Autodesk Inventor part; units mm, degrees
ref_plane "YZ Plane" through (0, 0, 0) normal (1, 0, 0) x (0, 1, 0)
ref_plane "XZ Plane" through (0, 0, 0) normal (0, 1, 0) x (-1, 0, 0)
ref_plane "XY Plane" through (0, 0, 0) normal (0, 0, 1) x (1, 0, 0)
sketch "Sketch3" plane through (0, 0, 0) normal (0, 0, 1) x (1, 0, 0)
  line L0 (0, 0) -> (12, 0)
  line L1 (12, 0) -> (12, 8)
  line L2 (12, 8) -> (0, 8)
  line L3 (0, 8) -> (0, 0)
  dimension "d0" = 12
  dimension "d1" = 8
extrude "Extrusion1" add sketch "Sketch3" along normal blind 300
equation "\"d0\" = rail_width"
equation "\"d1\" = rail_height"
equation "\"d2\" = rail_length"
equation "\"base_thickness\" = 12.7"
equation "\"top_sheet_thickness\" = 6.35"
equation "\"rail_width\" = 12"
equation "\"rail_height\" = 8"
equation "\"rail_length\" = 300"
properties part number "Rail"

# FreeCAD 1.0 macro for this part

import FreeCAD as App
import Part
import Sketcher
from FreeCAD import Vector


def add_polygon(sketch, points):
    """Adds a closed chain of lines whose ends are joined by coincident constraints."""
    first, n = sketch.GeometryCount, len(points)
    for a, b in zip(points, points[1:] + points[:1]):
        sketch.addGeometry(Part.LineSegment(App.Vector(*a, 0), App.Vector(*b, 0)), False)
    for i in range(n):
        sketch.addConstraint(Sketcher.Constraint("Coincident", first + i, 2, first + (i + 1) % n, 1))

doc = App.newDocument("Part")
params = doc.addObject("Spreadsheet::Sheet", "Params")
for row, (alias, value) in enumerate([
    ("sketch1_width", "12 mm"),
    ("sketch1_height", "8 mm"),
    ("pad1_length", "300 mm"),
], start=1):
    params.set(f"A{row}", alias)
    params.set(f"B{row}", "=" + value)
    params.setAlias(f"B{row}", alias)

body = doc.addObject("PartDesign::Body", "Body")

# Sketch on XY plane
sketch1 = doc.addObject("Sketcher::SketchObject", "Sketch")
body.addObject(sketch1)
sketch1.AttachmentSupport = (doc.XY_Plane, [""])
sketch1.MapMode = "FlatFace"
add_polygon(sketch1, [(0, 8), (0, 0), (12, 0), (12, 8)])  # lines 0-3
sketch1.addConstraint(Sketcher.Constraint("Vertical", 0))
sketch1.addConstraint(Sketcher.Constraint("Horizontal", 1))
sketch1.addConstraint(Sketcher.Constraint("Vertical", 2))
sketch1.addConstraint(Sketcher.Constraint("Horizontal", 3))
sketch1.addConstraint(Sketcher.Constraint("Coincident", 0, 2, -1, 1))
sketch1.addConstraint(Sketcher.Constraint("DistanceX", 1, 1, 1, 2, 12.0))
sketch1.addConstraint(Sketcher.Constraint("DistanceY", 0, 2, 0, 1, 8.0))
sketch1.setExpression("Constraints[9]", "Params.sketch1_width")
sketch1.setExpression("Constraints[10]", "Params.sketch1_height")
pad1 = doc.addObject("PartDesign::Pad", "Pad")
body.addObject(pad1)
pad1.Profile = sketch1
pad1.setExpression("Length", "Params.pad1_length")

doc.recompute()
